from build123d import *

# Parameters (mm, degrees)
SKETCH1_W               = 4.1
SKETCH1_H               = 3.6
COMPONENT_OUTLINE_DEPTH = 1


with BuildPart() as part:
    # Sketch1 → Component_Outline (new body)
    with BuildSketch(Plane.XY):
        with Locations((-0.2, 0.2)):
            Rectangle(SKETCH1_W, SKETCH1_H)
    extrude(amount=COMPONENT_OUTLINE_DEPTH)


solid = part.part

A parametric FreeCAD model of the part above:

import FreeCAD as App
import Part
import Sketcher

V = App.Vector


def add_polygon(sketch, points):
    """Adds a closed chain of lines whose ends are joined by coincident constraints."""
    first, n = sketch.GeometryCount, len(points)
    for a, b in zip(points, points[1:] + points[:1]):
        sketch.addGeometry(Part.LineSegment(App.Vector(*a, 0), App.Vector(*b, 0)), False)
    for i in range(n):
        sketch.addConstraint(Sketcher.Constraint("Coincident", first + i, 2, first + (i + 1) % n, 1))

doc = App.newDocument("Part")
params = doc.addObject("Spreadsheet::Sheet", "Params")
for row, (alias, value) in enumerate([
    ("sketch1_width", "4.1 mm"),
    ("sketch1_height", "3.6 mm"),
    ("pad1_length", "1 mm"),
], start=1):
    params.set(f"A{row}", alias)
    params.set(f"B{row}", "=" + value)
    params.setAlias(f"B{row}", alias)

body = doc.addObject("PartDesign::Body", "Body")

sketch1 = body.newObject("Sketcher::SketchObject", "Sketch")
sketch1.AttachmentSupport = (doc.getObject("XY_Plane"), [""])
sketch1.MapMode = "FlatFace"
add_polygon(sketch1, [(-2.25, 2), (-2.25, -1.6), (1.85, -1.6), (1.85, 2)])
sketch1.addConstraint([
    Sketcher.Constraint("Vertical", 0),
    Sketcher.Constraint("Horizontal", 1),
    Sketcher.Constraint("Vertical", 2),
    Sketcher.Constraint("Horizontal", 3),
    Sketcher.Constraint("DistanceX", 1, 1, 1, 2, 4.1),
    Sketcher.Constraint("DistanceY", 0, 2, 0, 1, 3.6),
    Sketcher.Constraint("DistanceY", -1, 1, 2, 2, 2.0),
    Sketcher.Constraint("DistanceX", 0, 2, -1, 1, 2.25),
])
sketch1.setExpression("Constraints[8]", "Params.sketch1_width")
sketch1.setExpression("Constraints[9]", "Params.sketch1_height")
pad1 = body.newObject("PartDesign::Pad", "Pad")
pad1.Profile = sketch1
pad1.setExpression("Length", "Params.pad1_length")

doc.recompute()
